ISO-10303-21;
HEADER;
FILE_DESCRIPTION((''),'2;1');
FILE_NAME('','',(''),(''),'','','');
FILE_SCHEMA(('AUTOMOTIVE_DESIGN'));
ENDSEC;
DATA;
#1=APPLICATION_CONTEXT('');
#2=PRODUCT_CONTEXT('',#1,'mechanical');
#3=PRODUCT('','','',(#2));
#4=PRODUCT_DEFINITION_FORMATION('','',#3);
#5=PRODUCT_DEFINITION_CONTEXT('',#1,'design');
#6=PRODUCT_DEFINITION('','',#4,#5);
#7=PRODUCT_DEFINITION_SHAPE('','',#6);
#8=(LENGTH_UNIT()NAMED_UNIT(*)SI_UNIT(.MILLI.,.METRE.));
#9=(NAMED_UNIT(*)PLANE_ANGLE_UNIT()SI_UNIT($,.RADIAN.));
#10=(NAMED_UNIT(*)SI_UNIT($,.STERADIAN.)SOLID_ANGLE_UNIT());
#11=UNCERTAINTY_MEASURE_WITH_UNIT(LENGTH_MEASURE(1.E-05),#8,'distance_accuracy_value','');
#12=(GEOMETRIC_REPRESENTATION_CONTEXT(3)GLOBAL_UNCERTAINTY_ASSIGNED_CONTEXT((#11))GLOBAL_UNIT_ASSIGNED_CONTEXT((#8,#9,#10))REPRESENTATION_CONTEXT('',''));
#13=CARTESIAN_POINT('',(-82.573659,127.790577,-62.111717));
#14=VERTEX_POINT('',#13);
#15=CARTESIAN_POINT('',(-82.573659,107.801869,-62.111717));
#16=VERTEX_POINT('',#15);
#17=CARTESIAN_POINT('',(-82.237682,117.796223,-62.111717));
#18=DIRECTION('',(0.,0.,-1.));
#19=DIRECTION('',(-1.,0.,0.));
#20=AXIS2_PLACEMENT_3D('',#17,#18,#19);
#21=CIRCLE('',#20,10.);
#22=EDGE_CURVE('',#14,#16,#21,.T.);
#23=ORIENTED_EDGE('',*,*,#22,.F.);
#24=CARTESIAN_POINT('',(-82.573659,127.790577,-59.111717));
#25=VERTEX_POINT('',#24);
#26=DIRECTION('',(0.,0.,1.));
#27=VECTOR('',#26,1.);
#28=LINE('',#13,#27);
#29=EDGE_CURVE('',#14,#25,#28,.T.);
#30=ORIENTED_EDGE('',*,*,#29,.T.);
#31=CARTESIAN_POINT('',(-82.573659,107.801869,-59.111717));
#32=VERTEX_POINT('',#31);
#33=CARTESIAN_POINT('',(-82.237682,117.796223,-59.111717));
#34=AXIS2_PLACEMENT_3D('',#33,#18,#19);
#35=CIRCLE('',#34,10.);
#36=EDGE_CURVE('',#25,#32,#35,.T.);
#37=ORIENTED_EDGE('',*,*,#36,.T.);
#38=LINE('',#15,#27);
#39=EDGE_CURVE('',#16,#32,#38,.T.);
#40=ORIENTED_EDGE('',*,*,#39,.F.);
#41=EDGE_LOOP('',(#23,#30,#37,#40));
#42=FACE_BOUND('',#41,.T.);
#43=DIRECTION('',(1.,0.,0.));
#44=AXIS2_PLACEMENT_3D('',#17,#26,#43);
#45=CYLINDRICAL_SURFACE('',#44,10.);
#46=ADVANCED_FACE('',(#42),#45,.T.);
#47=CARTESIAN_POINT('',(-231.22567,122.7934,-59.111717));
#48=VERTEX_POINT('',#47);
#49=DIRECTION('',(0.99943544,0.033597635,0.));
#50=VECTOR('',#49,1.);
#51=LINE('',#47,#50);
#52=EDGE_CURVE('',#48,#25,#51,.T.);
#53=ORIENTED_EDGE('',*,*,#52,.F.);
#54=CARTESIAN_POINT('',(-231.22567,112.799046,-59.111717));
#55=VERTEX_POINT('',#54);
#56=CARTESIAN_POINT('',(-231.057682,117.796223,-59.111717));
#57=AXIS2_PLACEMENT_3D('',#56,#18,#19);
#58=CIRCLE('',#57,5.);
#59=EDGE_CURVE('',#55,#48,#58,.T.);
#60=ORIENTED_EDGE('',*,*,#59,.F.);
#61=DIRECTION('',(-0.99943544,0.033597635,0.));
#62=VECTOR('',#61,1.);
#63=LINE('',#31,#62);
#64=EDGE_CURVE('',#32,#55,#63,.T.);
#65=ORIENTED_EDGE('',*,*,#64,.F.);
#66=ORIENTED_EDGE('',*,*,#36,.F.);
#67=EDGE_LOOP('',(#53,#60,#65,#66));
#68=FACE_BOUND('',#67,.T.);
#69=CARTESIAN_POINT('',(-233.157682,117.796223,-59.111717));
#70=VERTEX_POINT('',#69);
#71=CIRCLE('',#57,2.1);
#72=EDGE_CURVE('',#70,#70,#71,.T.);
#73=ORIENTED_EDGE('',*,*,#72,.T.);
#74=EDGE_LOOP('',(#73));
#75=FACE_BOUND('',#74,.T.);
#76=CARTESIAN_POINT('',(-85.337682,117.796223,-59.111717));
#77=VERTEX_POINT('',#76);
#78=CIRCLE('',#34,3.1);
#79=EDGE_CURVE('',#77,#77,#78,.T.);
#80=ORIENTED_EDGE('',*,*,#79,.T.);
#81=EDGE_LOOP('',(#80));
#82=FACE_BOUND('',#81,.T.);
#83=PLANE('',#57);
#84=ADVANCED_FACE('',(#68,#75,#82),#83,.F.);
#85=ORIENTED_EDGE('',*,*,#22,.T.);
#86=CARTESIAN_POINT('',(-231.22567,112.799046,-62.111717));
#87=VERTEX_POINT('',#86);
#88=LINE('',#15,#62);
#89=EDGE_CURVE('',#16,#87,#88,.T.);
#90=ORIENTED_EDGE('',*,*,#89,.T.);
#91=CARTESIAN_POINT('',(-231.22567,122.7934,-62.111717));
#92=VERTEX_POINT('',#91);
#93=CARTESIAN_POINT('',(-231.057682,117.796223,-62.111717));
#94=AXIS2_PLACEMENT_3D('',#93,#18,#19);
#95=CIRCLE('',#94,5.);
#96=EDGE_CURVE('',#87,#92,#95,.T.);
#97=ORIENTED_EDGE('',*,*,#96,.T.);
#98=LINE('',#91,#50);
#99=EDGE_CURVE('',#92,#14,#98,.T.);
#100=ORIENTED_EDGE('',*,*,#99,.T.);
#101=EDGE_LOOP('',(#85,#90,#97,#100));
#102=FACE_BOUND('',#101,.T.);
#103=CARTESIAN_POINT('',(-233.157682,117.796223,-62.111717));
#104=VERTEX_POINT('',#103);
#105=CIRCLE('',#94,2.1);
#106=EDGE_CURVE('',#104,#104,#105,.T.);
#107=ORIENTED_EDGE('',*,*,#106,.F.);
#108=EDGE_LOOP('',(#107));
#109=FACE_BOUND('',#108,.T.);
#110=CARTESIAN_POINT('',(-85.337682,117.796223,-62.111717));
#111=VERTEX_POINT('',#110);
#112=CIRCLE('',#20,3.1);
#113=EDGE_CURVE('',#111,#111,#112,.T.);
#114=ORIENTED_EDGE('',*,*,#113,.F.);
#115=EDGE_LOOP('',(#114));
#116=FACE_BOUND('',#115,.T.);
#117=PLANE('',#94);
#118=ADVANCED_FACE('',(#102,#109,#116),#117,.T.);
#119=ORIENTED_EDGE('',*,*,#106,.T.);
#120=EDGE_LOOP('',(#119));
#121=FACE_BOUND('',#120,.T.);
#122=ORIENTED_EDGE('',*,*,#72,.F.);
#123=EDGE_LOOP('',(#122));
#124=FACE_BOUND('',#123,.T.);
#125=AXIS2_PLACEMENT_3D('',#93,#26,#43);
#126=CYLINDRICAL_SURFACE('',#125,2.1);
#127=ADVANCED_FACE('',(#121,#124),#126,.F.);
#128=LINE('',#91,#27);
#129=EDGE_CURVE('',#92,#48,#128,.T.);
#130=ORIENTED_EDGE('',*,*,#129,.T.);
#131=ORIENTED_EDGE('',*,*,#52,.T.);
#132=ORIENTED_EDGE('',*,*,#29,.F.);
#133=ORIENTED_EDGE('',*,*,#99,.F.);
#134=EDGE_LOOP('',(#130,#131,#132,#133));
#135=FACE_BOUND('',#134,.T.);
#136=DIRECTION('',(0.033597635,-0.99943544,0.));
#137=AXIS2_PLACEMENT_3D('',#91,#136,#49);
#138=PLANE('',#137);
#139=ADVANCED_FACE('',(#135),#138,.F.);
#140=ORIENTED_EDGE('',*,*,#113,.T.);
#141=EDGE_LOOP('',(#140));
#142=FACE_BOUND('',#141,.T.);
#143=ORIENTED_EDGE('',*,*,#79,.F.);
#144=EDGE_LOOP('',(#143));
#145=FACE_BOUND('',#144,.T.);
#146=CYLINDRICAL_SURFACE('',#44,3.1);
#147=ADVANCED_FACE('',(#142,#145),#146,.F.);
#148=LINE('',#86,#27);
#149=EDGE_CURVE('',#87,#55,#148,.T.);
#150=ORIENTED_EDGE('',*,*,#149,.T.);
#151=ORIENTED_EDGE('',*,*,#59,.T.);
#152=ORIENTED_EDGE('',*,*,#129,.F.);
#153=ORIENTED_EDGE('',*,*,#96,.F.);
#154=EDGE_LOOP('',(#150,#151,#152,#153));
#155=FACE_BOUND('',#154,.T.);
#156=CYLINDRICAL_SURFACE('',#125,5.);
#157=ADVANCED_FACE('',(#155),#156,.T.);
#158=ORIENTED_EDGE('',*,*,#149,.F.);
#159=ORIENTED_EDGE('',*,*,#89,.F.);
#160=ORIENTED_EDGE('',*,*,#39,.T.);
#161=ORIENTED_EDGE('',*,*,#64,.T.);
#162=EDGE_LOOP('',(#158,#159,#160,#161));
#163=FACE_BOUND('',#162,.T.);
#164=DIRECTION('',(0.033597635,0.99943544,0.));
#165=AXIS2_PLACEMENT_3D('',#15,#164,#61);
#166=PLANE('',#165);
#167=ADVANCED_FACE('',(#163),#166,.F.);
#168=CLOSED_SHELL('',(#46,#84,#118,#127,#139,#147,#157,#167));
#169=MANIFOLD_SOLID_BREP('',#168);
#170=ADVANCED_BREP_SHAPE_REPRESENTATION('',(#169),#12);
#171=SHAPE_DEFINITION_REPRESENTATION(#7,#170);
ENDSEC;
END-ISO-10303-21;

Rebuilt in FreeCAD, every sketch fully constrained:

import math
import FreeCAD as App
import Part
import Sketcher

V = App.Vector

doc = App.newDocument("Part")
params = doc.addObject("Spreadsheet::Sheet", "Params")
for row, (alias, value) in enumerate([
    ("sketch1_radius", "10 mm"),
    ("sketch1_radius2", "5 mm"),
    ("sketch1_diameter", "6.2 mm"),
    ("sketch1_diameter2", "4.2 mm"),
    ("pad1_length", "3 mm"),
], start=1):
    params.set(f"A{row}", alias)
    params.set(f"B{row}", "=" + value)
    params.setAlias(f"B{row}", alias)

body = doc.addObject("PartDesign::Body", "Body")

# Sketch on XY plane
sketch1 = body.newObject("Sketcher::SketchObject", "Sketch")
sketch1.AttachmentSupport = (doc.getObject("XY_Plane"), [""])
sketch1.MapMode = "FlatFace"
sketch1.AttachmentOffset = App.Placement(V(0, 0, -59.111717), App.Rotation())
sketch1.addGeometry(Part.LineSegment(V(-231.2, 122.8, 0), V(-82.6, 127.8, 0)), False)
sketch1.addGeometry(Part.ArcOfCircle(Part.Circle(V(-82.2, 117.8, 0), V(0, 0, 1), 10), math.radians(-92), math.radians(92)), False)
sketch1.addGeometry(Part.LineSegment(V(-82.6, 107.8, 0), V(-231.2, 112.8, 0)), False)
sketch1.addGeometry(Part.ArcOfCircle(Part.Circle(V(-231.1, 117.8, 0), V(0, 0, 1), 5), math.radians(92), math.radians(268)), False)
sketch1.addGeometry(Part.Circle(V(-82.2, 117.8, 0), V(0, 0, 1), 3.1), False)
sketch1.addGeometry(Part.Circle(V(-231.1, 117.8, 0), V(0, 0, 1), 2.1), False)
sketch1.addConstraint(Sketcher.Constraint("Tangent", 0, 2, 1, 2))
sketch1.addConstraint(Sketcher.Constraint("Tangent", 1, 1, 2, 1))
sketch1.addConstraint(Sketcher.Constraint("Tangent", 2, 2, 3, 2))
sketch1.addConstraint(Sketcher.Constraint("Tangent", 3, 1, 0, 1))
sketch1.addConstraint(Sketcher.Constraint("Coincident", 4, 3, 1, 3))
sketch1.addConstraint(Sketcher.Constraint("Coincident", 5, 3, 3, 3))
sketch1.addConstraint(Sketcher.Constraint("Horizontal", 1, 3, 3, 3))
sketch1.addConstraint(Sketcher.Constraint("Radius", 1, 10.0))
sketch1.addConstraint(Sketcher.Constraint("Radius", 3, 5.0))
sketch1.addConstraint(Sketcher.Constraint("Diameter", 4, 6.2))
sketch1.addConstraint(Sketcher.Constraint("Diameter", 5, 4.2))
sketch1.addConstraint(Sketcher.Constraint("DistanceX", 3, 3, 1, 3, 148.82))
sketch1.addConstraint(Sketcher.Constraint("DistanceY", -1, 1, 3, 1, 122.7934))
sketch1.addConstraint(Sketcher.Constraint("DistanceX", 0, 2, -1, 1, 82.573659))
sketch1.setExpression("Constraints[7]", "Params.sketch1_radius")
sketch1.setExpression("Constraints[8]", "Params.sketch1_radius2")
sketch1.setExpression("Constraints[9]", "Params.sketch1_diameter")
sketch1.setExpression("Constraints[10]", "Params.sketch1_diameter2")
pad1 = body.newObject("PartDesign::Pad", "Pad")
pad1.Profile = sketch1
pad1.setExpression("Length", "Params.pad1_length")
pad1.Reversed = True

doc.recompute()
